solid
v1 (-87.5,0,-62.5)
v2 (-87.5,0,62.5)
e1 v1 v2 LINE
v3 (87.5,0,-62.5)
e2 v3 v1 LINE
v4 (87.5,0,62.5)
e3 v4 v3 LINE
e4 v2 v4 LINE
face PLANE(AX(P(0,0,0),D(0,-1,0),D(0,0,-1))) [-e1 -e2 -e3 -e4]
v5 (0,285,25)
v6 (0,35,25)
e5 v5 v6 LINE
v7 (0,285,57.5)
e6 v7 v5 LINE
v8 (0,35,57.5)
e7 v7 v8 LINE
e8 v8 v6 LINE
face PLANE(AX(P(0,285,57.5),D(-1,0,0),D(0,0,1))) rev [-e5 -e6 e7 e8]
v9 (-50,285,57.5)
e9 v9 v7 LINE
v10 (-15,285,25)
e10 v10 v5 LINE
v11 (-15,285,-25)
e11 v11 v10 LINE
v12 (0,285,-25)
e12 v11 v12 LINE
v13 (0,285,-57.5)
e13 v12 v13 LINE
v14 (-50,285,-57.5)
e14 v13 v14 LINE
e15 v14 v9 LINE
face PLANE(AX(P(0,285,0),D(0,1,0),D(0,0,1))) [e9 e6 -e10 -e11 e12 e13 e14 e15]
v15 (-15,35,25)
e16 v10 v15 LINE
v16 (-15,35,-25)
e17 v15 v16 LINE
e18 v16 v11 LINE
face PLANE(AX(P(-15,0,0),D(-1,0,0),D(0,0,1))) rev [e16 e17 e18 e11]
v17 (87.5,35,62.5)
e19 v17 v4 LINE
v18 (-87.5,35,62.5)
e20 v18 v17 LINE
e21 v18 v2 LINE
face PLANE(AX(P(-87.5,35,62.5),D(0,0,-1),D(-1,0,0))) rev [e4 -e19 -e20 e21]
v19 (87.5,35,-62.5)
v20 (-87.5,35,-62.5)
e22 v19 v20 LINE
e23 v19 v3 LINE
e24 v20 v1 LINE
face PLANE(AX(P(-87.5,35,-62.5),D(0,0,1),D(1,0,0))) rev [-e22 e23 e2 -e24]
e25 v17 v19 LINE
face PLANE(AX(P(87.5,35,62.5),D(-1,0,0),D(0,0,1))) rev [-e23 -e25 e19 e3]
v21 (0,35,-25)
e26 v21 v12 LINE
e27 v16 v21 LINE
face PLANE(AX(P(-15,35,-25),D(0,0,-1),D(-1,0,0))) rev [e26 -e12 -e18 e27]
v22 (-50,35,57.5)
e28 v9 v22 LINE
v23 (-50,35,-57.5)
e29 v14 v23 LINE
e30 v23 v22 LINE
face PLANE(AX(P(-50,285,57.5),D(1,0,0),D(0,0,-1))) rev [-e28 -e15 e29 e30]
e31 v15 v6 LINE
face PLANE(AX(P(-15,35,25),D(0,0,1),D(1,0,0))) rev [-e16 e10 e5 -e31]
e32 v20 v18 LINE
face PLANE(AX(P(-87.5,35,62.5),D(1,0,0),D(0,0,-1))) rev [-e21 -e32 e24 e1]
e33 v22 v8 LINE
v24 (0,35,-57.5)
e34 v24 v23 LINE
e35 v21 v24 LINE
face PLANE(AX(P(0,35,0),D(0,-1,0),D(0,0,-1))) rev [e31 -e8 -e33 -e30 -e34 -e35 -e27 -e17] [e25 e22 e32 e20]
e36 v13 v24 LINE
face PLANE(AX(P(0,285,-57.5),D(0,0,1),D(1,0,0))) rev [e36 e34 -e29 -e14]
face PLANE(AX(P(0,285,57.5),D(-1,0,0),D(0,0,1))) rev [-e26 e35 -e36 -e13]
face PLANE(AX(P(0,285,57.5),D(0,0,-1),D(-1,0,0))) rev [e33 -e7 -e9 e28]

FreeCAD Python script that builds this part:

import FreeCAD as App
import Part
import Sketcher


def add_polygon(sketch, points):
    """Adds a closed chain of lines whose ends are joined by coincident constraints."""
    first, n = sketch.GeometryCount, len(points)
    for a, b in zip(points, points[1:] + points[:1]):
        sketch.addGeometry(Part.LineSegment(App.Vector(*a, 0), App.Vector(*b, 0)), False)
    for i in range(n):
        sketch.addConstraint(Sketcher.Constraint("Coincident", first + i, 2, first + (i + 1) % n, 1))

doc = App.newDocument("Part")
params = doc.addObject("Spreadsheet::Sheet", "Params")
for row, (alias, value) in enumerate([
    ("sketch1_width", "175 mm"),
    ("sketch1_height", "125 mm"),
    ("pad1_length", "35 mm"),
    ("sketch2_width", "50 mm"),
    ("sketch2_height", "115 mm"),
    ("pad2_length", "250 mm"),
    ("sketch3_width", "250 mm"),
    ("sketch3_height", "50 mm"),
    ("pocket1_length", "15 mm"),
], start=1):
    params.set(f"A{row}", alias)
    params.set(f"B{row}", "=" + value)
    params.setAlias(f"B{row}", alias)

body = doc.addObject("PartDesign::Body", "Body")

sketch1 = body.newObject("Sketcher::SketchObject", "Sketch")
sketch1.AttachmentSupport = (doc.getObject("XZ_Plane"), [""])
sketch1.MapMode = "FlatFace"
add_polygon(sketch1, [(-88, -62), (-88, 62), (88, 62), (88, -62)])
sketch1.addConstraint([
    Sketcher.Constraint("Vertical", 0),
    Sketcher.Constraint("Horizontal", 1),
    Sketcher.Constraint("Vertical", 2),
    Sketcher.Constraint("Horizontal", 3),
    Sketcher.Constraint("Symmetric", 0, 2, 2, 2, -1, 1),
    Sketcher.Constraint("DistanceX", 1, 1, 1, 2, 175.0),
    Sketcher.Constraint("DistanceY", 0, 1, 0, 2, 125.0),
])
sketch1.setExpression("Constraints[9]", "Params.sketch1_width")
sketch1.setExpression("Constraints[10]", "Params.sketch1_height")
pad1 = body.newObject("PartDesign::Pad", "Pad")
pad1.Profile = sketch1
pad1.setExpression("Length", "Params.pad1_length")
pad1.Reversed = True

sketch2 = body.newObject("Sketcher::SketchObject", "Sketch001")
sketch2.AttachmentSupport = (doc.getObject("XZ_Plane"), [""])
sketch2.MapMode = "FlatFace"
sketch2.AttachmentOffset = App.Placement(App.Vector(0, 0, -35), App.Rotation())
add_polygon(sketch2, [(-50, -58), (-50, 58), (0, 58), (0, -58)])
sketch2.addConstraint([
    Sketcher.Constraint("Vertical", 0),
    Sketcher.Constraint("Horizontal", 1),
    Sketcher.Constraint("Vertical", 2),
    Sketcher.Constraint("Horizontal", 3),
    Sketcher.Constraint("Symmetric", 1, 2, 2, 2, -1, 1),
    Sketcher.Constraint("DistanceX", 1, 1, 1, 2, 50.0),
    Sketcher.Constraint("DistanceY", 0, 1, 0, 2, 115.0),
])
sketch2.setExpression("Constraints[9]", "Params.sketch2_width")
sketch2.setExpression("Constraints[10]", "Params.sketch2_height")
pad2 = body.newObject("PartDesign::Pad", "Pad001")
pad2.Profile = sketch2
pad2.setExpression("Length", "Params.pad2_length")
pad2.Reversed = True

sketch3 = body.newObject("Sketcher::SketchObject", "Sketch002")
sketch3.AttachmentSupport = (doc.getObject("YZ_Plane"), [""])
sketch3.MapMode = "FlatFace"
add_polygon(sketch3, [(285, 25), (35, 25), (35, -25), (285, -25)])
sketch3.addConstraint([
    Sketcher.Constraint("Horizontal", 0),
    Sketcher.Constraint("Vertical", 1),
    Sketcher.Constraint("Horizontal", 2),
    Sketcher.Constraint("Vertical", 3),
    Sketcher.Constraint("DistanceX", 0, 2, 0, 1, 250.0),
    Sketcher.Constraint("DistanceY", 1, 2, 1, 1, 50.0),
    Sketcher.Constraint("DistanceX", -1, 1, 0, 2, 35.0),
    Sketcher.Constraint("DistanceY", -1, 1, 0, 2, 25.0),
])
sketch3.setExpression("Constraints[8]", "Params.sketch3_width")
sketch3.setExpression("Constraints[9]", "Params.sketch3_height")
pocket1 = body.newObject("PartDesign::Pocket", "Pocket")
pocket1.Profile = sketch3
pocket1.setExpression("Length", "Params.pocket1_length")

doc.recompute()
